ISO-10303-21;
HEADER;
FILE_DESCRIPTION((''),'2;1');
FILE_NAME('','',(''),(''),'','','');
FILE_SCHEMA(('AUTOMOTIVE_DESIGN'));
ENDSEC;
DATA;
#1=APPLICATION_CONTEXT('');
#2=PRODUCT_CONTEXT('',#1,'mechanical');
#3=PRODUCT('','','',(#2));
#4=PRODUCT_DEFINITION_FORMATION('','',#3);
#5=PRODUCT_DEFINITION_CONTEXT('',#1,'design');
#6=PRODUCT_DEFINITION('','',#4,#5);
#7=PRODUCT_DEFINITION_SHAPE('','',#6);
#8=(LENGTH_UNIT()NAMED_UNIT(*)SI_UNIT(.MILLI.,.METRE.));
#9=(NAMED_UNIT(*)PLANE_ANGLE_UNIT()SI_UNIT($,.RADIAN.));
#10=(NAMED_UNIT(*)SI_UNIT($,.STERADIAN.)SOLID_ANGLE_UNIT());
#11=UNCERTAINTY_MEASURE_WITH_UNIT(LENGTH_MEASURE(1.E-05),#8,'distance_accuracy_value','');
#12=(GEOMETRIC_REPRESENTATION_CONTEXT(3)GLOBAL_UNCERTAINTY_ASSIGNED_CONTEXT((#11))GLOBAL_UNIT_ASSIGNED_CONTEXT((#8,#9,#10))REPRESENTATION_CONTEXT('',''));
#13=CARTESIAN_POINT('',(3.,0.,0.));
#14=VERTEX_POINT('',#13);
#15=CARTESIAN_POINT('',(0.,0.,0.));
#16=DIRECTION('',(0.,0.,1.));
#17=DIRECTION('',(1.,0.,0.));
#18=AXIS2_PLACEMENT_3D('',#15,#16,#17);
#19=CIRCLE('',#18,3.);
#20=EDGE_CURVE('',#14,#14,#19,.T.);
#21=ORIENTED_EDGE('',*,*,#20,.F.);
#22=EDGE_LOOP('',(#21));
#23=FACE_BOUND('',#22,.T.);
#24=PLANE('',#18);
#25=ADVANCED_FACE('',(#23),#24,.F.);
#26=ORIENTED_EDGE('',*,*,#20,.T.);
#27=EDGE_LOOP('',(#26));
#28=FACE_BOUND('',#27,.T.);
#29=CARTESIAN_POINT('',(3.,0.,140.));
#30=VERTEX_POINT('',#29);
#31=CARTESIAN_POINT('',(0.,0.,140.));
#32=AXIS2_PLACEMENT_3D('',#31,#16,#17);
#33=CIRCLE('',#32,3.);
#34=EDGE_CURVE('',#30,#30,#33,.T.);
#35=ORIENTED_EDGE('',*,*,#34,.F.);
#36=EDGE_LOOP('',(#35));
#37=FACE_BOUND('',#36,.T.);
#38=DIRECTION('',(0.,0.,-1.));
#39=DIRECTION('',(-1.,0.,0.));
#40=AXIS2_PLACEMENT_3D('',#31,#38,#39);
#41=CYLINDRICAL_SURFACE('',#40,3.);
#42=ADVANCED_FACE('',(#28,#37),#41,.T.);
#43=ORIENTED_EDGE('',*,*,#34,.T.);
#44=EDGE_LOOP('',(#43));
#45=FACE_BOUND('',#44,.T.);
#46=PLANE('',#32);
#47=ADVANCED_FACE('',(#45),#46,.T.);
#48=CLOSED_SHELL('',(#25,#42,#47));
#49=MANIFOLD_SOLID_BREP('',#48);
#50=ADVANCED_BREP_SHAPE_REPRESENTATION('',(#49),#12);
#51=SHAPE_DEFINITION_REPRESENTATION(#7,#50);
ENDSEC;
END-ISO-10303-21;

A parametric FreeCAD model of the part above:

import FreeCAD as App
import Part
import Sketcher
from FreeCAD import Vector

doc = App.newDocument("Part")
body = doc.addObject("PartDesign::Body", "Body")

sketch1 = body.newObject("Sketcher::SketchObject", "Sketch")
sketch1.AttachmentSupport = (doc.getObject("XY_Plane"), [""])
sketch1.MapMode = "FlatFace"
sketch1.addGeometry(Part.Circle(Vector(0, 0, 0), Vector(0, 0, 1), 3), False)
sketch1.addConstraint([
    Sketcher.Constraint("Coincident", 0, 3, -1, 1),
    Sketcher.Constraint("Diameter", 0, 6.0),
])
pad1 = body.newObject("PartDesign::Pad", "Pad")
pad1.Profile = sketch1
pad1.Length = 140

doc.recompute()
